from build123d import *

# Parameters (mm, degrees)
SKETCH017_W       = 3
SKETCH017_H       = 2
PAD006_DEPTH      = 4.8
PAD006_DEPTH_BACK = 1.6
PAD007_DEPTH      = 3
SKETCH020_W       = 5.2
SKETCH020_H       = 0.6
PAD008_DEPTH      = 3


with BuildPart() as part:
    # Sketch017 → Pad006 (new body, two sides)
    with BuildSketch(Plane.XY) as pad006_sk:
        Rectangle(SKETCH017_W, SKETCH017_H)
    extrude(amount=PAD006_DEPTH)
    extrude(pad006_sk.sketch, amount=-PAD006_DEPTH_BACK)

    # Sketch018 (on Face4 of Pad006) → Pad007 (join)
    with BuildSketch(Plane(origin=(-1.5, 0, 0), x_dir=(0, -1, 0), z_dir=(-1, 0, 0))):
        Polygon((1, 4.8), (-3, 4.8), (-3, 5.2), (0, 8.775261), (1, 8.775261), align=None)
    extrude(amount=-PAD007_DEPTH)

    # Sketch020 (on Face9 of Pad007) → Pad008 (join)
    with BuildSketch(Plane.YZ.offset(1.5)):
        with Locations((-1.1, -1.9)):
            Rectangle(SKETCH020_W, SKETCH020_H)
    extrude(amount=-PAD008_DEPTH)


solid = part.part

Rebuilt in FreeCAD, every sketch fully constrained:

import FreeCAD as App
import Part
import Sketcher

V = App.Vector
Q = App.Units.Quantity

doc = App.newDocument("Part")
body = doc.addObject("PartDesign::Body", "Body")

sketch1 = body.newObject("Sketcher::SketchObject", "Sketch")
sketch1.AttachmentSupport = (doc.getObject("XY_Plane"), [""])
sketch1.MapMode = "FlatFace"
sketch1.addGeometry(Part.LineSegment(V(-1.5, 1, 0), V(-1.5, -1, 0)), False)
sketch1.addGeometry(Part.LineSegment(V(-1.5, -1, 0), V(1.5, -1, 0)), False)
sketch1.addGeometry(Part.LineSegment(V(1.5, -1, 0), V(1.5, 1, 0)), False)
sketch1.addGeometry(Part.LineSegment(V(1.5, 1, 0), V(-1.5, 1, 0)), False)
sketch1.addConstraint(Sketcher.Constraint("Coincident", 0, 2, 1, 1))
sketch1.addConstraint(Sketcher.Constraint("Coincident", 1, 2, 2, 1))
sketch1.addConstraint(Sketcher.Constraint("Coincident", 2, 2, 3, 1))
sketch1.addConstraint(Sketcher.Constraint("Coincident", 3, 2, 0, 1))
sketch1.addConstraint(Sketcher.Constraint("Vertical", 0))
sketch1.addConstraint(Sketcher.Constraint("Horizontal", 1))
sketch1.addConstraint(Sketcher.Constraint("Vertical", 2))
sketch1.addConstraint(Sketcher.Constraint("Horizontal", 3))
sketch1.addConstraint(Sketcher.Constraint("Symmetric", 0, 2, 2, 2, -1, 1))
sketch1.addConstraint(Sketcher.Constraint("DistanceX", 1, 1, 1, 2, Q("3 mm")))
sketch1.addConstraint(Sketcher.Constraint("DistanceY", 0, 2, 0, 1, Q("2 mm")))
pad1 = body.newObject("PartDesign::Pad", "Pad")
pad1.Profile = sketch1
pad1.Type = "TwoLengths"
pad1.Length = 4.8
pad1.Length2 = 1.6

sketch2 = body.newObject("Sketcher::SketchObject", "Sketch001")
sketch2.AttachmentSupport = (doc.getObject("YZ_Plane"), [""])
sketch2.MapMode = "FlatFace"
sketch2.AttachmentOffset = App.Placement(V(0, 0, -1.5), App.Rotation())
sketch2.addGeometry(Part.LineSegment(V(3, 4.8, 0), V(-1, 4.8, 0)), False)
sketch2.addGeometry(Part.LineSegment(V(-1, 4.8, 0), V(-1, 8.78, 0)), False)
sketch2.addGeometry(Part.LineSegment(V(-1, 8.78, 0), V(0, 8.78, 0)), False)
sketch2.addGeometry(Part.LineSegment(V(0, 8.78, 0), V(3, 5.2, 0)), False)
sketch2.addGeometry(Part.LineSegment(V(3, 5.2, 0), V(3, 4.8, 0)), False)
sketch2.addConstraint(Sketcher.Constraint("Coincident", 0, 2, 1, 1))
sketch2.addConstraint(Sketcher.Constraint("Coincident", 1, 2, 2, 1))
sketch2.addConstraint(Sketcher.Constraint("Coincident", 2, 2, 3, 1))
sketch2.addConstraint(Sketcher.Constraint("Coincident", 3, 2, 4, 1))
sketch2.addConstraint(Sketcher.Constraint("Coincident", 4, 2, 0, 1))
sketch2.addConstraint(Sketcher.Constraint("Horizontal", 0))
sketch2.addConstraint(Sketcher.Constraint("Vertical", 1))
sketch2.addConstraint(Sketcher.Constraint("Horizontal", 2))
sketch2.addConstraint(Sketcher.Constraint("Vertical", 4))
sketch2.addConstraint(Sketcher.Constraint("PointOnObject", 2, 2, -2))
sketch2.addConstraint(Sketcher.Constraint("DistanceX", 0, 2, 0, 1, Q("4 mm")))
sketch2.addConstraint(Sketcher.Constraint("DistanceX", 2, 1, 2, 2, Q("1 mm")))
sketch2.addConstraint(Sketcher.Constraint("Angle", 3, Q("-50.000002 deg")))
sketch2.addConstraint(Sketcher.Constraint("DistanceY", 4, 2, 4, 1, Q("0.4 mm")))
sketch2.addConstraint(Sketcher.Constraint("DistanceY", -1, 1, 0, 2, Q("4.8 mm")))
pad2 = body.newObject("PartDesign::Pad", "Pad001")
pad2.Profile = sketch2
pad2.Length = 3

sketch3 = body.newObject("Sketcher::SketchObject", "Sketch002")
sketch3.AttachmentSupport = (doc.getObject("YZ_Plane"), [""])
sketch3.MapMode = "FlatFace"
sketch3.AttachmentOffset = App.Placement(V(0, 0, 1.5), App.Rotation())
sketch3.addGeometry(Part.LineSegment(V(-3.7, -1.6, 0), V(-3.7, -2.2, 0)), False)
sketch3.addGeometry(Part.LineSegment(V(-3.7, -2.2, 0), V(1.5, -2.2, 0)), False)
sketch3.addGeometry(Part.LineSegment(V(1.5, -2.2, 0), V(1.5, -1.6, 0)), False)
sketch3.addGeometry(Part.LineSegment(V(1.5, -1.6, 0), V(-3.7, -1.6, 0)), False)
sketch3.addConstraint(Sketcher.Constraint("Coincident", 0, 2, 1, 1))
sketch3.addConstraint(Sketcher.Constraint("Coincident", 1, 2, 2, 1))
sketch3.addConstraint(Sketcher.Constraint("Coincident", 2, 2, 3, 1))
sketch3.addConstraint(Sketcher.Constraint("Coincident", 3, 2, 0, 1))
sketch3.addConstraint(Sketcher.Constraint("Vertical", 0))
sketch3.addConstraint(Sketcher.Constraint("Horizontal", 1))
sketch3.addConstraint(Sketcher.Constraint("Vertical", 2))
sketch3.addConstraint(Sketcher.Constraint("Horizontal", 3))
sketch3.addConstraint(Sketcher.Constraint("DistanceX", 1, 1, 1, 2, Q("5.2 mm")))
sketch3.addConstraint(Sketcher.Constraint("DistanceY", 0, 2, 0, 1, Q("0.6 mm")))
sketch3.addConstraint(Sketcher.Constraint("DistanceX", 0, 2, -1, 1, Q("3.7 mm")))
sketch3.addConstraint(Sketcher.Constraint("DistanceY", 0, 2, -1, 1, Q("2.2 mm")))
pad3 = body.newObject("PartDesign::Pad", "Pad002")
pad3.Profile = sketch3
pad3.Length = 3
pad3.Reversed = True

doc.recompute()
